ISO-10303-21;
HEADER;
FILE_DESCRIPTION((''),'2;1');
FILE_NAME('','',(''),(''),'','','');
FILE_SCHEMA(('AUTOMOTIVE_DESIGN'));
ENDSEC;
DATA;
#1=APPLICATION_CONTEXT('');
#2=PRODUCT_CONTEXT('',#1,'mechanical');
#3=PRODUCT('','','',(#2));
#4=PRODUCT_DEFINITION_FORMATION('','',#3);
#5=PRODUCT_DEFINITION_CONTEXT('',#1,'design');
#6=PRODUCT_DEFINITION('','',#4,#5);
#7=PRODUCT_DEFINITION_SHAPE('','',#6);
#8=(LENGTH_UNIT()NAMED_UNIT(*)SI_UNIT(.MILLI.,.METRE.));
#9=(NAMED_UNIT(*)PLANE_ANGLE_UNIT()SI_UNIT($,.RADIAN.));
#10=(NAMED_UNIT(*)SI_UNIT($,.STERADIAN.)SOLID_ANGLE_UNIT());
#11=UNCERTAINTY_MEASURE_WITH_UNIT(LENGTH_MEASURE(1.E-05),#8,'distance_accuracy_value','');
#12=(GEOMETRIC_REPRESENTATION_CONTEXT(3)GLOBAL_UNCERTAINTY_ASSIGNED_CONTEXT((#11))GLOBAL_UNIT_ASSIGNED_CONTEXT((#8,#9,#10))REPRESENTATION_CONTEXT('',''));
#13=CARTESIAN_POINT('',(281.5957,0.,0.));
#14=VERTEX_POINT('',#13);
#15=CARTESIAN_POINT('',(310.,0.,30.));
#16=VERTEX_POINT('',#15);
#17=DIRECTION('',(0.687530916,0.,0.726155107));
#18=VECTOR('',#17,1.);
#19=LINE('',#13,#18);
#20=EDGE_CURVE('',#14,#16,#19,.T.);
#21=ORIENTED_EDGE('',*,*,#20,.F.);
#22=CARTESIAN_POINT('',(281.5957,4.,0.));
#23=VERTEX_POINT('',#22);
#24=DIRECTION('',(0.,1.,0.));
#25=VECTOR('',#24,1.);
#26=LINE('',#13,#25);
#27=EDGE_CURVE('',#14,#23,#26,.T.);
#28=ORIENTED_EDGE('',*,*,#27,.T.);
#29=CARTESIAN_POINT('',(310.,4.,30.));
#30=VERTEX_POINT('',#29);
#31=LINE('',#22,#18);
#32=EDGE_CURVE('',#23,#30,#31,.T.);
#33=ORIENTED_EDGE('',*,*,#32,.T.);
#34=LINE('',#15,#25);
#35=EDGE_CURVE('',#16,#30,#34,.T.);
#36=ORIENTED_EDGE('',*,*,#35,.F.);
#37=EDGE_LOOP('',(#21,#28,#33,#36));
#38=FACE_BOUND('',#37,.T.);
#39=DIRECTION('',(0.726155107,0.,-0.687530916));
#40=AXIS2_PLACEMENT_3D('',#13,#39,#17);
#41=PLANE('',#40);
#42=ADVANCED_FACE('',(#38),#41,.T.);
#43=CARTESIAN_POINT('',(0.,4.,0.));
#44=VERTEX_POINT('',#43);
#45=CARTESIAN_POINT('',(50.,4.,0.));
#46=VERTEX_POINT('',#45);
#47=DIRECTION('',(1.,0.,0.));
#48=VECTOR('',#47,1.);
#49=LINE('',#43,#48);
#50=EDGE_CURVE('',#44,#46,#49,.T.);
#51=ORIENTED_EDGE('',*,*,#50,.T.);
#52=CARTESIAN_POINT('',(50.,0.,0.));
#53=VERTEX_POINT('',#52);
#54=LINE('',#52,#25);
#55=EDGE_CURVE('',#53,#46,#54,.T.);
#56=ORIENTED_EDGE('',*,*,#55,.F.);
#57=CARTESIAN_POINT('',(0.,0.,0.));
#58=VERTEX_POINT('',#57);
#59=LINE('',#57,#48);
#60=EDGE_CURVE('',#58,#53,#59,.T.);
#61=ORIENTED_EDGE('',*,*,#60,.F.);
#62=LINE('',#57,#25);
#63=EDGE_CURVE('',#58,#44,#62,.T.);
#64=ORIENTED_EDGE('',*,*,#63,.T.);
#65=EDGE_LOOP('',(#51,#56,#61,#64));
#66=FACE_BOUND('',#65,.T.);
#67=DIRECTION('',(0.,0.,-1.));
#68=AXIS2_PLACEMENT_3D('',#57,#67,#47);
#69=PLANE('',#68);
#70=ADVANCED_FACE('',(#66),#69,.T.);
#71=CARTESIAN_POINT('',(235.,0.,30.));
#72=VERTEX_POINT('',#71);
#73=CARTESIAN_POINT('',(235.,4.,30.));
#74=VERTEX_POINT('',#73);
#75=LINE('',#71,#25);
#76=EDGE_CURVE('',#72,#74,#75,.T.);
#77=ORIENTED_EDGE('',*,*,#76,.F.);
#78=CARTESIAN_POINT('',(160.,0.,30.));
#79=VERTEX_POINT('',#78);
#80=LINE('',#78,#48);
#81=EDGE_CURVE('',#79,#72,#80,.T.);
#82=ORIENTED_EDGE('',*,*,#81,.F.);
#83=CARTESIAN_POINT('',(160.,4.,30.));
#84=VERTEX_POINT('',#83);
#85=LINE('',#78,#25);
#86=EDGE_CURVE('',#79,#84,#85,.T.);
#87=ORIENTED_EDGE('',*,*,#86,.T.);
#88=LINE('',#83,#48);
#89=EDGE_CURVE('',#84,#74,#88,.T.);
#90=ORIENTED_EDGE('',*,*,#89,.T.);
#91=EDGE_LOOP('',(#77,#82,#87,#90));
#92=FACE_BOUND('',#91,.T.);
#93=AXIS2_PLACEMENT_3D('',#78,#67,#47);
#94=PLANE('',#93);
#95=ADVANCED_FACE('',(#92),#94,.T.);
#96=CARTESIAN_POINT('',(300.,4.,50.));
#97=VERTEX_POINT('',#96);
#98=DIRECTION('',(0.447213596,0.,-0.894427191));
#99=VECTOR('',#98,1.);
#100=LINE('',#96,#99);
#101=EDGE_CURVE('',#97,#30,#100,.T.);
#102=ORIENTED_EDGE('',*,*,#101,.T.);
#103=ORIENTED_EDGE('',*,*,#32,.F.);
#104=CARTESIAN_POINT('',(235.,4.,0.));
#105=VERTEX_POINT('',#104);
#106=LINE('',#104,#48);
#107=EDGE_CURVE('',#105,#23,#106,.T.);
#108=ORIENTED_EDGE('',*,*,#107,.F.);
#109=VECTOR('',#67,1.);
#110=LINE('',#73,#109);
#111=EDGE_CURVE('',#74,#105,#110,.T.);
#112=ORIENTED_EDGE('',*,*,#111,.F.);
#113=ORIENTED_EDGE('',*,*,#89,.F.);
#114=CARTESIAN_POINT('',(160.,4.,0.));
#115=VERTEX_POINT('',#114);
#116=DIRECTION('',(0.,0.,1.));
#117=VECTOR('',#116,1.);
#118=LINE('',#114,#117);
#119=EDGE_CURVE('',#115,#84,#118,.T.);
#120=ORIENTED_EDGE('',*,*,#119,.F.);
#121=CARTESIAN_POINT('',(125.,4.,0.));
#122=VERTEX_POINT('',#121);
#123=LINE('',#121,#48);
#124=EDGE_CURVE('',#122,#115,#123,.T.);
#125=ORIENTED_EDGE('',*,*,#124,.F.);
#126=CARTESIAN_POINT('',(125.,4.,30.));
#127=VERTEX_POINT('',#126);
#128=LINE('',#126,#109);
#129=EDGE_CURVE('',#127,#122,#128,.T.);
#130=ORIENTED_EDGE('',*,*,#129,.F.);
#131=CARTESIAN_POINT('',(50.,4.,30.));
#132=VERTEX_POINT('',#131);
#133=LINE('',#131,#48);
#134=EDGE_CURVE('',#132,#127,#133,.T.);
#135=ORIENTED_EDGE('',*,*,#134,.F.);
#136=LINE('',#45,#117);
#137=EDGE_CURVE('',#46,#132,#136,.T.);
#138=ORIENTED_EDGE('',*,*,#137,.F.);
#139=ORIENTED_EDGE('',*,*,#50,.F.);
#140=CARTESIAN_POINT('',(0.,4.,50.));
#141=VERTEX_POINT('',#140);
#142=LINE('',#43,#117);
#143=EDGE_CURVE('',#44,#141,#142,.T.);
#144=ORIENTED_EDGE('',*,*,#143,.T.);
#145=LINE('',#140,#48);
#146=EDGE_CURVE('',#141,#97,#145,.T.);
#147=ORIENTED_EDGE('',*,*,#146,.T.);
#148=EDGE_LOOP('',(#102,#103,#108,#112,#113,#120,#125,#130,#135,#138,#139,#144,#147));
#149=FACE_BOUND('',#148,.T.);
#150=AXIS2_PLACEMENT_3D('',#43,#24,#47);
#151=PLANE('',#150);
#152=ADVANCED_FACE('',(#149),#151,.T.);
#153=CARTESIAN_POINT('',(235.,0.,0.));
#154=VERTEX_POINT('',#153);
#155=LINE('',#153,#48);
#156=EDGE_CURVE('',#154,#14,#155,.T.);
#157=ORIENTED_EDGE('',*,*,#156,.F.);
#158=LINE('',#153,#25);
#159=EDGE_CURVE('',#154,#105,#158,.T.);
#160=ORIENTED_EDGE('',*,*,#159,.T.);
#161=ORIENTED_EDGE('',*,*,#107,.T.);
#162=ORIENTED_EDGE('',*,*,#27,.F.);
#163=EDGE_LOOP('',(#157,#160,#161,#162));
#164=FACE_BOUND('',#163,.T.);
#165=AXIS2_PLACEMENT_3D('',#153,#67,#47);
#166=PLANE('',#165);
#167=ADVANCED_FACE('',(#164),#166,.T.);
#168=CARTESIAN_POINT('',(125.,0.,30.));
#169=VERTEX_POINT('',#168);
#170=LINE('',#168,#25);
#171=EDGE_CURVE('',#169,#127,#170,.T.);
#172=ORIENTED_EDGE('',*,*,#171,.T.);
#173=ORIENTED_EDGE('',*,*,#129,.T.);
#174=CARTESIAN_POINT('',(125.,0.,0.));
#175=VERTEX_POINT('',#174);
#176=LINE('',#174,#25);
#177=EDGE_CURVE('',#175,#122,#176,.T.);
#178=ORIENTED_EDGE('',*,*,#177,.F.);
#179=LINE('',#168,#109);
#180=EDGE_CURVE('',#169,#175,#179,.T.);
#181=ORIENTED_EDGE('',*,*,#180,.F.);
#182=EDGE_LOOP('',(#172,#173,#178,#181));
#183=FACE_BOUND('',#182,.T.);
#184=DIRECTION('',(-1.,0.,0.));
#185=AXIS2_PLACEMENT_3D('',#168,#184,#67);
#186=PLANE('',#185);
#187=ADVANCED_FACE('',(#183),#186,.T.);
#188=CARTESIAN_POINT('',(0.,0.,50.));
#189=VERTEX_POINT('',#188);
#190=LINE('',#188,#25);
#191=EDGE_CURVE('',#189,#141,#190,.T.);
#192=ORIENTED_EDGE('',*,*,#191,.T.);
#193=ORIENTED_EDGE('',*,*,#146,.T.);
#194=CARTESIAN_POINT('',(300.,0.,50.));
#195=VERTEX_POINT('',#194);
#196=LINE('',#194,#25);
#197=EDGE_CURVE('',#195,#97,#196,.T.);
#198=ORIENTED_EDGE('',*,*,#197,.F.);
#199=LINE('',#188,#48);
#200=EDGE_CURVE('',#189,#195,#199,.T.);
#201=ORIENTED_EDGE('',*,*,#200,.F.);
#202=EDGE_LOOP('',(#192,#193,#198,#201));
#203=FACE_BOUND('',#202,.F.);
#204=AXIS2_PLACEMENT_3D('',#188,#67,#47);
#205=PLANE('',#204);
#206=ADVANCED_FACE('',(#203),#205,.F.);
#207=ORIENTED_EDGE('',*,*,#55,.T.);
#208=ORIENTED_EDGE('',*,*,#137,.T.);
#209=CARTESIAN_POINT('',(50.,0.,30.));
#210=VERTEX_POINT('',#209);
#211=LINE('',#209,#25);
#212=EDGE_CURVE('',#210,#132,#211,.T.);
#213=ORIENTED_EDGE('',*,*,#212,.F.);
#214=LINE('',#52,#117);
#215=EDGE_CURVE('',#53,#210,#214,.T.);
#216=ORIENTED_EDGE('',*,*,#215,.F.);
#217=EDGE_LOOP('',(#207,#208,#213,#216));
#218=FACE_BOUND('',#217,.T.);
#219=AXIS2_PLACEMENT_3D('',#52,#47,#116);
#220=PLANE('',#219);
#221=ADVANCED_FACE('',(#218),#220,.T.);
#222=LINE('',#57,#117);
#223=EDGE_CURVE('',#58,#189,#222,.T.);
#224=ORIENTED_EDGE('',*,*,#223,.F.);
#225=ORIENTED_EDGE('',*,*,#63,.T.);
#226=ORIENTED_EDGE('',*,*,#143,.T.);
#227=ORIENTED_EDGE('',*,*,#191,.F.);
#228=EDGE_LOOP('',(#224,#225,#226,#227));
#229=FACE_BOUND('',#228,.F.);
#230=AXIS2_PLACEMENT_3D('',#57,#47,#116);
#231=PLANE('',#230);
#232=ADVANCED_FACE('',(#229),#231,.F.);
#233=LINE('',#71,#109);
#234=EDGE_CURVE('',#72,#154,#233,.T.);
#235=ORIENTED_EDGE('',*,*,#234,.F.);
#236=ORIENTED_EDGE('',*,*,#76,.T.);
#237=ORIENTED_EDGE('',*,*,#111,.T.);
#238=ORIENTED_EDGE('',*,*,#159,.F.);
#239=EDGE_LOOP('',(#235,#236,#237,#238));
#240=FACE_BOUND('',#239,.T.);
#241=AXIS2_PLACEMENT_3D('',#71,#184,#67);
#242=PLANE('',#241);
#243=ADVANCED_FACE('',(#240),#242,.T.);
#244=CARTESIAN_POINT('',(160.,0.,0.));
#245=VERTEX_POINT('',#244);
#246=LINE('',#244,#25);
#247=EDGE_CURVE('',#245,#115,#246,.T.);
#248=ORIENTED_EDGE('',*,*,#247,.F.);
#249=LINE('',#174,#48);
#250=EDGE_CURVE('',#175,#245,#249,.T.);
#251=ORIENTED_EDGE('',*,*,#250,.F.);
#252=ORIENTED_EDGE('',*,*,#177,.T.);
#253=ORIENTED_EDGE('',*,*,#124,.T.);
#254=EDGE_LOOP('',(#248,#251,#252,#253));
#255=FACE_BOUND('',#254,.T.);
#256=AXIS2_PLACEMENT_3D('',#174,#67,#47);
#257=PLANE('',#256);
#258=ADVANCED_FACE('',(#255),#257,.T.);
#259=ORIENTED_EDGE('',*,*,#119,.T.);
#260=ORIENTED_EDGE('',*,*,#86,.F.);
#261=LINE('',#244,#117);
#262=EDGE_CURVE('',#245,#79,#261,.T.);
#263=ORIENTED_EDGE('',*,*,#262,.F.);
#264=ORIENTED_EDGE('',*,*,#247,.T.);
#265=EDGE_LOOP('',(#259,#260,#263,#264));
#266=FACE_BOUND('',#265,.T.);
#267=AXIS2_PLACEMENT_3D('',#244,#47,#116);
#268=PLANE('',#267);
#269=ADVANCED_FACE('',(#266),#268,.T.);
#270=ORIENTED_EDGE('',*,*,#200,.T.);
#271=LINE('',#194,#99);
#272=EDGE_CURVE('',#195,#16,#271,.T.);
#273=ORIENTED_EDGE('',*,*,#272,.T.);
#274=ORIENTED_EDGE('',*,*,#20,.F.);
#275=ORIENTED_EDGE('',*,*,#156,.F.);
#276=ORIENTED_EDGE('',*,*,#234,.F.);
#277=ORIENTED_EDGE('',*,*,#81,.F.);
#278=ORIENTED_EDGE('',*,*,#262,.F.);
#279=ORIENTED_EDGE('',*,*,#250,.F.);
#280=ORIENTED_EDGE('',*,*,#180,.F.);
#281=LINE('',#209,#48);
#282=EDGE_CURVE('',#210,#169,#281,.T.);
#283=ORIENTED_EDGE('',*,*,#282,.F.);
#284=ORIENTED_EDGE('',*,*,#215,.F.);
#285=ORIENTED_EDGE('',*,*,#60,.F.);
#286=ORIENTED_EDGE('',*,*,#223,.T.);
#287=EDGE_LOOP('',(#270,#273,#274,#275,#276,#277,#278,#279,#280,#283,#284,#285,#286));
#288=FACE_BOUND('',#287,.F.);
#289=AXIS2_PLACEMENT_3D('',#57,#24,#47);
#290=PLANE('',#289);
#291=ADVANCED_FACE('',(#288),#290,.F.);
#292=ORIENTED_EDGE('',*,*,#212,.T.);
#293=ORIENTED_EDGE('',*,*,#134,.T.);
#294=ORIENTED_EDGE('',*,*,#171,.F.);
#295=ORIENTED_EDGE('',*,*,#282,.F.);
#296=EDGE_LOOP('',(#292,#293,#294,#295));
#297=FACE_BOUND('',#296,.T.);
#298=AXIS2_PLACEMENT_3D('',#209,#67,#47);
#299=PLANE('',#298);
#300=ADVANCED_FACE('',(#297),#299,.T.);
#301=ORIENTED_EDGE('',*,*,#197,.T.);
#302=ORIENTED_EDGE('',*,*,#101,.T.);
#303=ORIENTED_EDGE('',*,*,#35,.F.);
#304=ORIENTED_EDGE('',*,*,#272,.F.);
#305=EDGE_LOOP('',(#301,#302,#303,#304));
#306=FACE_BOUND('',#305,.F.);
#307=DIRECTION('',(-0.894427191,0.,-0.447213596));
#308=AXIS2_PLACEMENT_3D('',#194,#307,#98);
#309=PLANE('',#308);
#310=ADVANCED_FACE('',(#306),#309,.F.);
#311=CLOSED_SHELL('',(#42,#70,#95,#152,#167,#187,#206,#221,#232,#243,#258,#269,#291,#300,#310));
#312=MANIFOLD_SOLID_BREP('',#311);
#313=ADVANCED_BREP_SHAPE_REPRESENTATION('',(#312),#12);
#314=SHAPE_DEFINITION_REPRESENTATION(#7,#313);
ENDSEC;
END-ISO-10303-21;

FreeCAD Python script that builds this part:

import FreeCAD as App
import Part
import Sketcher


def add_polygon(sketch, points):
    """Adds a closed chain of lines whose ends are joined by coincident constraints."""
    first, n = sketch.GeometryCount, len(points)
    for a, b in zip(points, points[1:] + points[:1]):
        sketch.addGeometry(Part.LineSegment(App.Vector(*a, 0), App.Vector(*b, 0)), False)
    for i in range(n):
        sketch.addConstraint(Sketcher.Constraint("Coincident", first + i, 2, first + (i + 1) % n, 1))

doc = App.newDocument("Part")
body = doc.addObject("PartDesign::Body", "Body")

sketch1 = body.newObject("Sketcher::SketchObject", "Sketch")
sketch1.AttachmentSupport = (doc.getObject("XZ_Plane"), [""])
sketch1.MapMode = "FlatFace"
add_polygon(sketch1, [(50, 0), (0, 0), (0, 50), (300, 50), (310, 30), (281.5957, 0), (235, 0), (235, 30), (160, 30), (160, 0), (125, 0), (125, 30), (50, 30)])
sketch1.addConstraint([
    Sketcher.Constraint("Horizontal", 0),
    Sketcher.Constraint("Vertical", 1),
    Sketcher.Constraint("Horizontal", 2),
    Sketcher.Constraint("Horizontal", 5),
    Sketcher.Constraint("Vertical", 6),
    Sketcher.Constraint("Horizontal", 7),
    Sketcher.Constraint("Vertical", 8),
    Sketcher.Constraint("Horizontal", 9),
    Sketcher.Constraint("Vertical", 10),
    Sketcher.Constraint("Horizontal", 11),
    Sketcher.Constraint("Vertical", 12),
    Sketcher.Constraint("Coincident", 0, 2, -1, 1),
    Sketcher.Constraint("PointOnObject", 4, 2, -1),
    Sketcher.Constraint("PointOnObject", 8, 2, -1),
    Sketcher.Constraint("Horizontal", 3, 2, 6, 2),
    Sketcher.Constraint("Horizontal", 7, 2, 10, 2),
    Sketcher.Constraint("Equal", 7, 11),
    Sketcher.Constraint("Equal", 0, 1),
    Sketcher.Constraint("DistanceX", 0, 2, 0, 1, 50.0),
    Sketcher.Constraint("DistanceX", 2, 1, 2, 2, 300.0),
    Sketcher.Constraint("DistanceX", 7, 2, 7, 1, 75.0),
    Sketcher.Constraint("DistanceX", 9, 2, 9, 1, 35.0),
    Sketcher.Constraint("DistanceY", 6, 1, 6, 2, 30.0),
    Sketcher.Constraint("DistanceX", 5, 2, 3, 2, 75.0),
    Sketcher.Constraint("Distance", 4, 41.3135),
])
pad1 = body.newObject("PartDesign::Pad", "Pad")
pad1.Profile = sketch1
pad1.Length = 4
pad1.Reversed = True

doc.recompute()
